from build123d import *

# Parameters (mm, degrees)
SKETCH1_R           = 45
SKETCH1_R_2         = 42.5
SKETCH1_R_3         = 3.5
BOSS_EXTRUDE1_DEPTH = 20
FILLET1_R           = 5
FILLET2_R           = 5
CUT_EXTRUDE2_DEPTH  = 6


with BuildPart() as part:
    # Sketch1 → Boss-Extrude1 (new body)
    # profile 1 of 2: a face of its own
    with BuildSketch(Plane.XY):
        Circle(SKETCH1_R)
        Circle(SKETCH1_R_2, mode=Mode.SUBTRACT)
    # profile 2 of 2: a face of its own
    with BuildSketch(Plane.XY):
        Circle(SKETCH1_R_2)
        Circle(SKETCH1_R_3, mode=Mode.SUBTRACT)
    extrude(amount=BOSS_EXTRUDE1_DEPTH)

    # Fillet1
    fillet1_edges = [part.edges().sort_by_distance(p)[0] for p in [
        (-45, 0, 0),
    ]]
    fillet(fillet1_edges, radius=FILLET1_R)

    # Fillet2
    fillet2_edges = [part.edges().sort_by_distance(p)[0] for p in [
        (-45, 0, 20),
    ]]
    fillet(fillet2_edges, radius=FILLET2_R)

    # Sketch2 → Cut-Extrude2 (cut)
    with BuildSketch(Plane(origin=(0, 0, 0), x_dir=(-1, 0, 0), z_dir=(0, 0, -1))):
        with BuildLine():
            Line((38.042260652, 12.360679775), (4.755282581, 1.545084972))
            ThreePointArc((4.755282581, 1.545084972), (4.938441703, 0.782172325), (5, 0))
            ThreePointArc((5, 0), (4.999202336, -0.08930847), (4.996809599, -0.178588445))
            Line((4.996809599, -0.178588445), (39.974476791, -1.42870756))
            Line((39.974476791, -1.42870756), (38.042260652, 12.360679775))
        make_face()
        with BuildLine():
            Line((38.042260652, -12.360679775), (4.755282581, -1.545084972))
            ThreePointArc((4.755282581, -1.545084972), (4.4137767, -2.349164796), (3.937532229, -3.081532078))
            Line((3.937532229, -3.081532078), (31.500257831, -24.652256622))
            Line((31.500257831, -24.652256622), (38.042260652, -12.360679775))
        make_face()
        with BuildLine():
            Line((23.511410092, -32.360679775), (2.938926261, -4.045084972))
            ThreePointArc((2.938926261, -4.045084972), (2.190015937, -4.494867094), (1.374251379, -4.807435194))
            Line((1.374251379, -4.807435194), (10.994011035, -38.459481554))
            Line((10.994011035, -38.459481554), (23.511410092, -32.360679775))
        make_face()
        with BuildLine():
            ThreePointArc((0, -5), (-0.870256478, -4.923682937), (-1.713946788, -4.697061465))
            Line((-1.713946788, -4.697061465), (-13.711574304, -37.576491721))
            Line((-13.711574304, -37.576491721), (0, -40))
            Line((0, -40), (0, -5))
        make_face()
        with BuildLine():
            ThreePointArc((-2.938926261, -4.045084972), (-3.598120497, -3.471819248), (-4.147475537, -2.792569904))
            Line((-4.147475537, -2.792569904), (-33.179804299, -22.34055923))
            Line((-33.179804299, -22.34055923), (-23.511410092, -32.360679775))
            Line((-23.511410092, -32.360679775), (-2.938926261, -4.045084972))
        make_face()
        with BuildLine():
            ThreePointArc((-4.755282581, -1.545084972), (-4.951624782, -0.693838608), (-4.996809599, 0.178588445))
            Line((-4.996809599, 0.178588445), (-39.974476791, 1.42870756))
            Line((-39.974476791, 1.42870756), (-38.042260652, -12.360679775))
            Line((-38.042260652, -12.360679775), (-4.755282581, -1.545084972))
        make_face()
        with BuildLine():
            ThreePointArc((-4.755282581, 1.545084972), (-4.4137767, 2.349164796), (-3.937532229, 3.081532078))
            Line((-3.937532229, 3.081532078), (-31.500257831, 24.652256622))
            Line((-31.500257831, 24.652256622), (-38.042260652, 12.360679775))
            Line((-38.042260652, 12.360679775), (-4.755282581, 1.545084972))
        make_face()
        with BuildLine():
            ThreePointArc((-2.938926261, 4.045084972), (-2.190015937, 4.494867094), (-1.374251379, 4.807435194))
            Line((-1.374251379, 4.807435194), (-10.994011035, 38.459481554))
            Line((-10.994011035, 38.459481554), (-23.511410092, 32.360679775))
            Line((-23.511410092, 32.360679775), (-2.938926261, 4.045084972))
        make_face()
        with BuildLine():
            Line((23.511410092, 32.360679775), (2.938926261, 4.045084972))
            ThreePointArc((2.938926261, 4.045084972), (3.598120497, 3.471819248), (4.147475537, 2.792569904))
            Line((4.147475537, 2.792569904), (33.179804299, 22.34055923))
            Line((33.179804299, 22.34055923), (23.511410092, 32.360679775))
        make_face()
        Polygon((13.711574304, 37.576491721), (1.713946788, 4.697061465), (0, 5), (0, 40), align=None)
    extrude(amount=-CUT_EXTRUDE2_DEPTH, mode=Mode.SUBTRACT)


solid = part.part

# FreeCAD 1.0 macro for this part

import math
import FreeCAD as App
import Part
import Sketcher
Q = App.Units.Quantity


def edges_at(feature, points):
    """Names of the edges that pass closest to the given points."""
    edges = feature.Shape.Edges
    near = lambda p: min(range(len(edges)), key=lambda i: edges[i].distToShape(Part.Vertex(*p))[0])
    return sorted({f"Edge{near(p) + 1}" for p in points})

doc = App.newDocument("Part")
body = doc.addObject("PartDesign::Body", "Body")

sketch1 = doc.addObject("Sketcher::SketchObject", "Sketch")
body.addObject(sketch1)
sketch1.AttachmentSupport = (doc.XY_Plane, [""])
sketch1.MapMode = "FlatFace"
sketch1.addGeometry([
    Part.Circle(App.Vector(0, 0, 0), App.Vector(0, 0, 1), 45),
    Part.Circle(App.Vector(0, 0, 0), App.Vector(0, 0, 1), 3.5),
], False)
sketch1.addConstraint([
    Sketcher.Constraint("Coincident", 0, 3, -1, 1),
    Sketcher.Constraint("Coincident", 1, 3, -1, 1),
    Sketcher.Constraint("Diameter", 0, Q("90 mm")),
    Sketcher.Constraint("Diameter", 1, Q("7 mm")),
])
pad1 = doc.addObject("PartDesign::Pad", "Pad")
body.addObject(pad1)
pad1.Profile = sketch1
pad1.Length = 20
doc.recompute()

fillet = doc.addObject("PartDesign::Fillet", "Fillet")
body.addObject(fillet)
fillet.Base = (pad1, edges_at(pad1, [(-45, 0, 0)]))
fillet.Radius = 5
doc.recompute()

fillet2 = doc.addObject("PartDesign::Fillet", "Fillet001")
body.addObject(fillet2)
fillet2.Base = (fillet, edges_at(fillet, [(-45, 0, 20)]))
fillet2.Radius = 5

sketch2 = doc.addObject("Sketcher::SketchObject", "Sketch001")
body.addObject(sketch2)
sketch2.AttachmentSupport = (doc.XY_Plane, [""])
sketch2.MapMode = "FlatFace"
sketch2.addGeometry([
    Part.LineSegment(App.Vector(-38.04, 12.36, 0), App.Vector(-4.76, 1.55, 0)),
    Part.ArcOfCircle(Part.Circle(App.Vector(0, 0, 0), App.Vector(0, 0, 1), 5), math.radians(162), math.radians(180)),
    Part.ArcOfCircle(Part.Circle(App.Vector(0, 0, 0), App.Vector(0, 0, 1), 5), math.radians(-180), math.radians(-177.95)),
    Part.LineSegment(App.Vector(-5, -0.18, 0), App.Vector(-39.97, -1.43, 0)),
    Part.LineSegment(App.Vector(-39.97, -1.43, 0), App.Vector(-38.04, 12.36, 0)),
    Part.LineSegment(App.Vector(-38.04, -12.36, 0), App.Vector(-4.76, -1.55, 0)),
    Part.ArcOfCircle(Part.Circle(App.Vector(0, 0, 0), App.Vector(0, 0, 1), 5), math.radians(-162), math.radians(-142)),
    Part.LineSegment(App.Vector(-3.94, -3.08, 0), App.Vector(-31.5, -24.65, 0)),
    Part.LineSegment(App.Vector(-31.5, -24.65, 0), App.Vector(-38.04, -12.36, 0)),
    Part.LineSegment(App.Vector(-23.51, -32.36, 0), App.Vector(-2.94, -4.05, 0)),
    Part.ArcOfCircle(Part.Circle(App.Vector(0, 0, 0), App.Vector(0, 0, 1), 5), math.radians(-126), math.radians(-106)),
    Part.LineSegment(App.Vector(-1.37, -4.81, 0), App.Vector(-10.99, -38.46, 0)),
    Part.LineSegment(App.Vector(-10.99, -38.46, 0), App.Vector(-23.51, -32.36, 0)),
    Part.ArcOfCircle(Part.Circle(App.Vector(0, 0, 0), App.Vector(0, 0, 1), 5), math.radians(-90), math.radians(-70)),
    Part.LineSegment(App.Vector(1.71, -4.7, 0), App.Vector(13.71, -37.58, 0)),
    Part.LineSegment(App.Vector(13.71, -37.58, 0), App.Vector(0, -40, 0)),
    Part.LineSegment(App.Vector(0, -40, 0), App.Vector(0, -5, 0)),
    Part.ArcOfCircle(Part.Circle(App.Vector(0, 0, 0), App.Vector(0, 0, 1), 5), math.radians(-54), math.radians(-34)),
    Part.LineSegment(App.Vector(4.15, -2.79, 0), App.Vector(33.18, -22.34, 0)),
    Part.LineSegment(App.Vector(33.18, -22.34, 0), App.Vector(23.51, -32.36, 0)),
    Part.LineSegment(App.Vector(23.51, -32.36, 0), App.Vector(2.94, -4.05, 0)),
    Part.ArcOfCircle(Part.Circle(App.Vector(0, 0, 0), App.Vector(0, 0, 1), 5), math.radians(-18), math.radians(2)),
    Part.LineSegment(App.Vector(5, 0.18, 0), App.Vector(39.97, 1.43, 0)),
    Part.LineSegment(App.Vector(39.97, 1.43, 0), App.Vector(38.04, -12.36, 0)),
    Part.LineSegment(App.Vector(38.04, -12.36, 0), App.Vector(4.76, -1.55, 0)),
    Part.ArcOfCircle(Part.Circle(App.Vector(0, 0, 0), App.Vector(0, 0, 1), 5), math.radians(18), math.radians(38)),
    Part.LineSegment(App.Vector(3.94, 3.08, 0), App.Vector(31.5, 24.65, 0)),
    Part.LineSegment(App.Vector(31.5, 24.65, 0), App.Vector(38.04, 12.36, 0)),
    Part.LineSegment(App.Vector(38.04, 12.36, 0), App.Vector(4.76, 1.55, 0)),
    Part.ArcOfCircle(Part.Circle(App.Vector(0, 0, 0), App.Vector(0, 0, 1), 5), math.radians(54), math.radians(74)),
    Part.LineSegment(App.Vector(1.37, 4.81, 0), App.Vector(10.99, 38.46, 0)),
    Part.LineSegment(App.Vector(10.99, 38.46, 0), App.Vector(23.51, 32.36, 0)),
    Part.LineSegment(App.Vector(23.51, 32.36, 0), App.Vector(2.94, 4.05, 0)),
    Part.LineSegment(App.Vector(-23.51, 32.36, 0), App.Vector(-2.94, 4.05, 0)),
    Part.ArcOfCircle(Part.Circle(App.Vector(0, 0, 0), App.Vector(0, 0, 1), 5), math.radians(126), math.radians(146)),
    Part.LineSegment(App.Vector(-4.15, 2.79, 0), App.Vector(-33.18, 22.34, 0)),
    Part.LineSegment(App.Vector(-33.18, 22.34, 0), App.Vector(-23.51, 32.36, 0)),
    Part.LineSegment(App.Vector(-1.71, 4.7, 0), App.Vector(-13.71, 37.58, 0)),
    Part.LineSegment(App.Vector(-13.71, 37.58, 0), App.Vector(0, 40, 0)),
    Part.LineSegment(App.Vector(0, 40, 0), App.Vector(0, 5, 0)),
    Part.LineSegment(App.Vector(0, 5, 0), App.Vector(-1.71, 4.7, 0)),
], False)
sketch2.addConstraint([
    Sketcher.Constraint("Coincident", 0, 2, 1, 1),
    Sketcher.Constraint("Tangent", 1, 2, 2, 1),
    Sketcher.Constraint("Coincident", 2, 2, 3, 1),
    Sketcher.Constraint("Coincident", 3, 2, 4, 1),
    Sketcher.Constraint("Coincident", 4, 2, 0, 1),
    Sketcher.Constraint("Coincident", 5, 2, 6, 1),
    Sketcher.Constraint("Coincident", 6, 2, 7, 1),
    Sketcher.Constraint("Coincident", 7, 2, 8, 1),
    Sketcher.Constraint("Coincident", 8, 2, 5, 1),
    Sketcher.Constraint("Coincident", 9, 2, 10, 1),
    Sketcher.Constraint("Coincident", 10, 2, 11, 1),
    Sketcher.Constraint("Coincident", 11, 2, 12, 1),
    Sketcher.Constraint("Coincident", 12, 2, 9, 1),
    Sketcher.Constraint("Coincident", 13, 2, 14, 1),
    Sketcher.Constraint("Coincident", 14, 2, 15, 1),
    Sketcher.Constraint("Coincident", 15, 2, 16, 1),
    Sketcher.Constraint("Coincident", 16, 2, 13, 1),
    Sketcher.Constraint("Coincident", 17, 2, 18, 1),
    Sketcher.Constraint("Coincident", 18, 2, 19, 1),
    Sketcher.Constraint("Coincident", 19, 2, 20, 1),
    Sketcher.Constraint("Coincident", 20, 2, 17, 1),
    Sketcher.Constraint("Coincident", 21, 2, 22, 1),
    Sketcher.Constraint("Coincident", 22, 2, 23, 1),
    Sketcher.Constraint("Coincident", 23, 2, 24, 1),
    Sketcher.Constraint("Coincident", 24, 2, 21, 1),
    Sketcher.Constraint("Coincident", 25, 2, 26, 1),
    Sketcher.Constraint("Coincident", 26, 2, 27, 1),
    Sketcher.Constraint("Coincident", 27, 2, 28, 1),
    Sketcher.Constraint("Coincident", 28, 2, 25, 1),
    Sketcher.Constraint("Coincident", 29, 2, 30, 1),
    Sketcher.Constraint("Coincident", 30, 2, 31, 1),
    Sketcher.Constraint("Coincident", 31, 2, 32, 1),
    Sketcher.Constraint("Coincident", 32, 2, 29, 1),
    Sketcher.Constraint("Coincident", 33, 2, 34, 1),
    Sketcher.Constraint("Coincident", 34, 2, 35, 1),
    Sketcher.Constraint("Coincident", 35, 2, 36, 1),
    Sketcher.Constraint("Coincident", 36, 2, 33, 1),
    Sketcher.Constraint("Coincident", 37, 2, 38, 1),
    Sketcher.Constraint("Coincident", 38, 2, 39, 1),
    Sketcher.Constraint("Coincident", 39, 2, 40, 1),
    Sketcher.Constraint("Coincident", 40, 2, 37, 1),
    Sketcher.Constraint("Vertical", 16),
    Sketcher.Constraint("Vertical", 39),
    Sketcher.Constraint("Coincident", 1, 3, -1, 1),
    Sketcher.Constraint("Coincident", 6, 3, -1, 1),
    Sketcher.Constraint("Coincident", 10, 3, -1, 1),
    Sketcher.Constraint("Coincident", 13, 3, -1, 1),
    Sketcher.Constraint("Coincident", 17, 3, -1, 1),
    Sketcher.Constraint("Coincident", 21, 3, -1, 1),
    Sketcher.Constraint("Coincident", 25, 3, -1, 1),
    Sketcher.Constraint("Coincident", 29, 3, -1, 1),
    Sketcher.Constraint("Coincident", 34, 3, -1, 1),
    Sketcher.Constraint("Equal", 1, 2),
    Sketcher.Constraint("Equal", 2, 6),
    Sketcher.Constraint("Equal", 6, 10),
    Sketcher.Constraint("Equal", 10, 13),
    Sketcher.Constraint("Equal", 13, 17),
    Sketcher.Constraint("Equal", 17, 21),
    Sketcher.Constraint("Equal", 21, 25),
    Sketcher.Constraint("Equal", 25, 29),
    Sketcher.Constraint("Equal", 29, 34),
    Sketcher.Constraint("Symmetric", 3, 2, 22, 2, -1, 1),
    Sketcher.Constraint("Symmetric", 4, 2, 23, 2, -1, 1),
    Sketcher.Constraint("Symmetric", 7, 2, 26, 2, -1, 1),
    Sketcher.Constraint("Symmetric", 8, 2, 27, 2, -1, 1),
    Sketcher.Constraint("Symmetric", 11, 2, 30, 2, -1, 1),
    Sketcher.Constraint("Symmetric", 12, 2, 31, 2, -1, 1),
    Sketcher.Constraint("Symmetric", 18, 2, 35, 2, -1, 1),
    Sketcher.Constraint("Symmetric", 19, 2, 36, 2, -1, 1),
    Sketcher.Constraint("Symmetric", 14, 2, 37, 2, -1, 1),
    Sketcher.Constraint("Symmetric", 15, 2, 38, 2, -1, 1),
    Sketcher.Constraint("Symmetric", 13, 2, 40, 2, -1, 1),
    Sketcher.Constraint("Symmetric", 12, 2, 19, 2, -2),
    Sketcher.Constraint("Symmetric", 8, 2, 23, 2, -2),
    Sketcher.Constraint("Symmetric", 16, 2, 39, 2, -1),
    Sketcher.Constraint("PointOnObject", 1, 2, -1),
    Sketcher.Constraint("Parallel", 3, 22),
    Sketcher.Constraint("Parallel", 0, 24),
    Sketcher.Constraint("Parallel", 7, 26),
    Sketcher.Constraint("Parallel", 5, 28),
    Sketcher.Constraint("Parallel", 11, 30),
    Sketcher.Constraint("Parallel", 9, 32),
    Sketcher.Constraint("Parallel", 20, 33),
    Sketcher.Constraint("Parallel", 18, 35),
    Sketcher.Constraint("Parallel", 38, 40),
    Sketcher.Constraint("Horizontal", 9, 2, 20, 2),
    Sketcher.Constraint("Horizontal", 5, 2, 24, 2),
    Sketcher.Constraint("Equal", 0, 3),
    Sketcher.Constraint("Equal", 5, 7),
    Sketcher.Constraint("Equal", 4, 8),
    Sketcher.Constraint("Equal", 7, 9),
    Sketcher.Constraint("Equal", 9, 11),
    Sketcher.Constraint("Equal", 8, 12),
    Sketcher.Constraint("Equal", 11, 14),
    Sketcher.Constraint("Equal", 12, 15),
    Sketcher.Constraint("Equal", 14, 18),
    Sketcher.Constraint("Equal", 15, 19),
    Sketcher.Constraint("Radius", 1, Q("5 mm")),
    Sketcher.Constraint("DistanceY", 16, 1, 16, 2, Q("35 mm")),
    Sketcher.Constraint("Angle", 0, Q("-18 deg")),
    Sketcher.Constraint("Angle", 9, Q("54 deg")),
    Sketcher.Constraint("Distance", 0, Q("35 mm")),
    Sketcher.Constraint("DistanceY", 12, 2, 8, 2, Q("20 mm")),
    Sketcher.Constraint("DistanceX", 17, 2, 22, 2, Q("35.827001 mm")),
    Sketcher.Constraint("DistanceX", 12, 2, 11, 2, Q("12.517399 mm")),
    Sketcher.Constraint("DistanceY", 11, 2, 12, 2, Q("6.098802 mm")),
    Sketcher.Constraint("DistanceX", 10, 2, 13, 2, Q("3.088198 mm")),
    Sketcher.Constraint("DistanceX", 2, 2, -1, 1, Q("4.99681 mm")),
    Sketcher.Constraint("DistanceX", 5, 2, 6, 2, Q("0.81775 mm")),
])
pocket1 = doc.addObject("PartDesign::Pocket", "Pocket")
body.addObject(pocket1)
pocket1.Profile = sketch2
pocket1.Length = 6
pocket1.Reversed = True

doc.recompute()
